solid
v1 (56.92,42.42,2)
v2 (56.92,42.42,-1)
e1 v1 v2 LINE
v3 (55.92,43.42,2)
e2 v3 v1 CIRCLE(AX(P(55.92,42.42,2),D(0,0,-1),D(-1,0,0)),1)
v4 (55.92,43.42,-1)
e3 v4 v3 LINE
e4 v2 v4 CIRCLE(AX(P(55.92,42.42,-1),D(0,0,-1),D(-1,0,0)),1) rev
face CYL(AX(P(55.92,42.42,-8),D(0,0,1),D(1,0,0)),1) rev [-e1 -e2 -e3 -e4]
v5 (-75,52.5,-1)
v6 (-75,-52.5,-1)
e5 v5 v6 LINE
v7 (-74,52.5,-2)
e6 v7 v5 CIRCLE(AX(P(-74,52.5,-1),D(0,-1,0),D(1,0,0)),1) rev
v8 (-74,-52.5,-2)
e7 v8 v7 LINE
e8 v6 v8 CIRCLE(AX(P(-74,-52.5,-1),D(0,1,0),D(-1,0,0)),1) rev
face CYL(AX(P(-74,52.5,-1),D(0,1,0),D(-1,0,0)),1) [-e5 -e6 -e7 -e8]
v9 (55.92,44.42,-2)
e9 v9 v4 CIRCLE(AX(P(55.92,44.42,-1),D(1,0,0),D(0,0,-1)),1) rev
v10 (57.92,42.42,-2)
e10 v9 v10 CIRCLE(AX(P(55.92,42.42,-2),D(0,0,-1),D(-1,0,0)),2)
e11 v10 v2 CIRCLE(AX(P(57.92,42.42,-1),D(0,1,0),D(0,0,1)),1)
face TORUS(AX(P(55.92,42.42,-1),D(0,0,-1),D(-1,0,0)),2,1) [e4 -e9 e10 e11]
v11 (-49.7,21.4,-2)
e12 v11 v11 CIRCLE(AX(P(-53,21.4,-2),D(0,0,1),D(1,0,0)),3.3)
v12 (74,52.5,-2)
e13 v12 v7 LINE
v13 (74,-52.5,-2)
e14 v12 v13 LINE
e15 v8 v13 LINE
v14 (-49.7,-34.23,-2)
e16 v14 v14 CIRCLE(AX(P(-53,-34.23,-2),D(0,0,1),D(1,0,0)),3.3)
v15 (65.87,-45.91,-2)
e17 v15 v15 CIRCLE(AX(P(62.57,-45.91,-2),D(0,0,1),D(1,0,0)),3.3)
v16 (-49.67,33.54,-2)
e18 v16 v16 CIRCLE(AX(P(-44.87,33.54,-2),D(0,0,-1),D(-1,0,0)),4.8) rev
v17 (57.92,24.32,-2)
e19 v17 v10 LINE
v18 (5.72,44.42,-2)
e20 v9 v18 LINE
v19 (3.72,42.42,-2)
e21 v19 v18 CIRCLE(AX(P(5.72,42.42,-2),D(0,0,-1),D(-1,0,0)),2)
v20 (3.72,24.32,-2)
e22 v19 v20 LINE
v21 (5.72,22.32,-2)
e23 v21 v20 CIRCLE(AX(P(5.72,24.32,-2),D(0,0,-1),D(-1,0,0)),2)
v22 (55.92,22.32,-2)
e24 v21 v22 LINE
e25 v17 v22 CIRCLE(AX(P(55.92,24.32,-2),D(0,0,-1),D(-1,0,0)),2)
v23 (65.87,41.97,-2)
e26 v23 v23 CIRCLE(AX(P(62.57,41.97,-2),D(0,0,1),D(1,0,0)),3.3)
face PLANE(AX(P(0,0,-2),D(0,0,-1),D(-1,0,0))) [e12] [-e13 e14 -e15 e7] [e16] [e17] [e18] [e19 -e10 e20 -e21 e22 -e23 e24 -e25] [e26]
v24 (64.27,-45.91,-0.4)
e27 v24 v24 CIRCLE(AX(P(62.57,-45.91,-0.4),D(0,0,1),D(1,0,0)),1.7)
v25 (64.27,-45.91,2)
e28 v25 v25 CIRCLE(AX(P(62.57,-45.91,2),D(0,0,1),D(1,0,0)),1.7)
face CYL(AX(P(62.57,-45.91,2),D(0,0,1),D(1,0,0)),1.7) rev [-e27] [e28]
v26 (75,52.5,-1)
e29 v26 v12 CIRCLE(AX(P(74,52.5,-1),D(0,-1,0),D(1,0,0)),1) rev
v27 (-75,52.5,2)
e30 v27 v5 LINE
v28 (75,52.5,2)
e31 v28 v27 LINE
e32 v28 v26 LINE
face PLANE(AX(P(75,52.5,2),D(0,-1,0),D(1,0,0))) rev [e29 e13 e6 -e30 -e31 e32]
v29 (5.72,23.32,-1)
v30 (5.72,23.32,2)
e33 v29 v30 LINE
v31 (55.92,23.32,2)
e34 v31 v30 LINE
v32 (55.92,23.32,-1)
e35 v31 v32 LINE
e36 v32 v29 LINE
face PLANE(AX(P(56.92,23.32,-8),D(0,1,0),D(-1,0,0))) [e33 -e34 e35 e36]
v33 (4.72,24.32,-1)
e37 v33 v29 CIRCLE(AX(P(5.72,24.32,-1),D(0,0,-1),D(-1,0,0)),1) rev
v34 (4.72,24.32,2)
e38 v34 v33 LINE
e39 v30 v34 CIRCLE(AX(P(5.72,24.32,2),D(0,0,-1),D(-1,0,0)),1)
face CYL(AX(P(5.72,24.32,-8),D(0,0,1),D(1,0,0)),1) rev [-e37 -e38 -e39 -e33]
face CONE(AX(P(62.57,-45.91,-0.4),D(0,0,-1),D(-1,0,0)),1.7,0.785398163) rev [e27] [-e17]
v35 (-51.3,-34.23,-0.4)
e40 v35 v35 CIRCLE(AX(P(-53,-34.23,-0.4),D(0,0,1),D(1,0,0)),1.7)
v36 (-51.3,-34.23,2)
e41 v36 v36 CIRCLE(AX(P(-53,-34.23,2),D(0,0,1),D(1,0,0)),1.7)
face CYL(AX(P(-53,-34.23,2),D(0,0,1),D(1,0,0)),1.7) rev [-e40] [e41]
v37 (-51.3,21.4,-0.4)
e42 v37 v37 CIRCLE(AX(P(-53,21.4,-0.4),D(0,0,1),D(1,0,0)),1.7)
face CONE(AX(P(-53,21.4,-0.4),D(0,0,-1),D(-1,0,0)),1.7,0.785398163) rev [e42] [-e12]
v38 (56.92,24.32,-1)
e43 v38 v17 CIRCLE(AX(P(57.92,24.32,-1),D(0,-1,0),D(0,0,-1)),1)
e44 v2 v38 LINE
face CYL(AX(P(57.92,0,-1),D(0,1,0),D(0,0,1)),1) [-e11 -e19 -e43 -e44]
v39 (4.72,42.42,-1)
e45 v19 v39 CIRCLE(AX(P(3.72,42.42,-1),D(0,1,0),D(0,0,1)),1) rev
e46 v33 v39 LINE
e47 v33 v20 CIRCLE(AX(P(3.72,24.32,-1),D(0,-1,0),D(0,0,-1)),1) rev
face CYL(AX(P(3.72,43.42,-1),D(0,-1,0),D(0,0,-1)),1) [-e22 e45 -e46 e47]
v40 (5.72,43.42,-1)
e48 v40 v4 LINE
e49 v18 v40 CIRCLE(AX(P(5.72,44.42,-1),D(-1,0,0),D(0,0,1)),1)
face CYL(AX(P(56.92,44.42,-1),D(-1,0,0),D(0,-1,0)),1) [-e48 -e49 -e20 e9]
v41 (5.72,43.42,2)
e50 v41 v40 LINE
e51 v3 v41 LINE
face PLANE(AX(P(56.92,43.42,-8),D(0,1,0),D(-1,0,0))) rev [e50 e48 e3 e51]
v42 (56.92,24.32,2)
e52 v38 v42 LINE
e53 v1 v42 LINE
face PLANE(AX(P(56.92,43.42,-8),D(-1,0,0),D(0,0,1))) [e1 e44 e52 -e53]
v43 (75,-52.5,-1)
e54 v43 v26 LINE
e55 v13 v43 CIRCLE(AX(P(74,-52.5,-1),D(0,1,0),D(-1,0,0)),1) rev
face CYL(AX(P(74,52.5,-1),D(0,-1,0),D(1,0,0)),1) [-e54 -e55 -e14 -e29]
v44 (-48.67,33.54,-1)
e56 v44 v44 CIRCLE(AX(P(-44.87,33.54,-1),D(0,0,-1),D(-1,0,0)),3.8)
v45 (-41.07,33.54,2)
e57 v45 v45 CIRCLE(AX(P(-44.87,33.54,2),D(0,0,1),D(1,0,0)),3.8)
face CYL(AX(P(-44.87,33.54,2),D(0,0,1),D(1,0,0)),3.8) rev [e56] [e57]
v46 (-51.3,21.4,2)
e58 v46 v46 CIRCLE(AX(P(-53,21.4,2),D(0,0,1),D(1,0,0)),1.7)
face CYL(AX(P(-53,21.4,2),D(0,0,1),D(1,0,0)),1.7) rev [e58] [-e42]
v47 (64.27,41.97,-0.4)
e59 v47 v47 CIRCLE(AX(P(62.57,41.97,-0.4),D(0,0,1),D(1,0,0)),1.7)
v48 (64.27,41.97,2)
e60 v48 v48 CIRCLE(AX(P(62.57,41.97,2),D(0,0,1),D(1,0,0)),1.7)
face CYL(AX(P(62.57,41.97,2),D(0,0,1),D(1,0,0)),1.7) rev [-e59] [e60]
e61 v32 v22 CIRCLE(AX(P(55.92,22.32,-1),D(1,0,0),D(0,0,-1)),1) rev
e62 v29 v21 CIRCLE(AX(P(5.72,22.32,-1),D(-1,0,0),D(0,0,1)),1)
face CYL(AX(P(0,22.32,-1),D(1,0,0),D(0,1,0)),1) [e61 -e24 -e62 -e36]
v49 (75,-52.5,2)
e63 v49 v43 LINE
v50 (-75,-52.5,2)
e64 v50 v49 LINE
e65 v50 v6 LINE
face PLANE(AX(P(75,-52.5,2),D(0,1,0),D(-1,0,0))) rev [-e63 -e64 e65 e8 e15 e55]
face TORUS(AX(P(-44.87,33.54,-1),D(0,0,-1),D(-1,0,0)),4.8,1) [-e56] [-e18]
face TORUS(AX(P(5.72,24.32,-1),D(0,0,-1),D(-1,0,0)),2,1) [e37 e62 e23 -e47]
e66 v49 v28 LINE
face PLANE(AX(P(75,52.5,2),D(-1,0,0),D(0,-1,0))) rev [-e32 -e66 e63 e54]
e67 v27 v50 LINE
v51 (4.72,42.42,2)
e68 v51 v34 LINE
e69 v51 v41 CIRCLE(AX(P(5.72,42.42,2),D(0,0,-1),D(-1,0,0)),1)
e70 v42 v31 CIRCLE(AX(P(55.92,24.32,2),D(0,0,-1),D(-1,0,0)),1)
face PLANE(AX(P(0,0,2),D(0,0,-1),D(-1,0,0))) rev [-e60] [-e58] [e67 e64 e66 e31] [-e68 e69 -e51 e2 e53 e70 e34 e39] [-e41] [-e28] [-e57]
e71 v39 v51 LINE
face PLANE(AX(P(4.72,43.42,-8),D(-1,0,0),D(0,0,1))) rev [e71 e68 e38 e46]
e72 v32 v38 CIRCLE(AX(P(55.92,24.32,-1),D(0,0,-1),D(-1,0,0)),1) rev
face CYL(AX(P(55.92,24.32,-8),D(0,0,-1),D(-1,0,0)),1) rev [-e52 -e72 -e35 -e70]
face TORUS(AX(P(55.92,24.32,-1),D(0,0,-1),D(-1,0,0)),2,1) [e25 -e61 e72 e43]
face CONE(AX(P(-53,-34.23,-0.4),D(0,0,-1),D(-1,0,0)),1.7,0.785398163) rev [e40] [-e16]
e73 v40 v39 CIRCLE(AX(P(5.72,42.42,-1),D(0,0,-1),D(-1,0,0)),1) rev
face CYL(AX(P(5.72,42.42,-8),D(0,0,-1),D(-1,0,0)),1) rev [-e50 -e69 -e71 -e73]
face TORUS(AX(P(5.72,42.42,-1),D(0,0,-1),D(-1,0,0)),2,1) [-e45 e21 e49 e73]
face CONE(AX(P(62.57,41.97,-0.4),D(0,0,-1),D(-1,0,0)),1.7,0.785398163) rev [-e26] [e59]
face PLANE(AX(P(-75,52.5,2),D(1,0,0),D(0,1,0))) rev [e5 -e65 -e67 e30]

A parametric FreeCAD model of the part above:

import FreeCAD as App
import Part
import Sketcher

V = App.Vector
Q = App.Units.Quantity


def edges_at(feature, points):
    """Names of the edges that pass closest to the given points."""
    edges = feature.Shape.Edges
    near = lambda p: min(range(len(edges)), key=lambda i: edges[i].distToShape(Part.Vertex(*p))[0])
    return sorted({f"Edge{near(p) + 1}" for p in points})


def add_polygon(sketch, points):
    """Adds a closed chain of lines whose ends are joined by coincident constraints."""
    first, n = sketch.GeometryCount, len(points)
    for a, b in zip(points, points[1:] + points[:1]):
        sketch.addGeometry(Part.LineSegment(App.Vector(*a, 0), App.Vector(*b, 0)), False)
    for i in range(n):
        sketch.addConstraint(Sketcher.Constraint("Coincident", first + i, 2, first + (i + 1) % n, 1))

doc = App.newDocument("Part")
body = doc.addObject("PartDesign::Body", "Body")

# Sketch on XY plane
sketch1 = doc.addObject("Sketcher::SketchObject", "Sketch")
body.addObject(sketch1)
sketch1.AttachmentSupport = (doc.XY_Plane, [""])
sketch1.MapMode = "FlatFace"
add_polygon(sketch1, [(-75, 52.5), (-75, -52.5), (75, -52.5), (75, 52.5)])  # lines 0-3
sketch1.addConstraint([
    Sketcher.Constraint("Vertical", 0),
    Sketcher.Constraint("Horizontal", 1),
    Sketcher.Constraint("Vertical", 2),
    Sketcher.Constraint("Horizontal", 3),
    Sketcher.Constraint("Symmetric", 0, 2, 2, 2, -1, 1),
    Sketcher.Constraint("DistanceX", 1, 1, 1, 2, Q("150 mm")),
    Sketcher.Constraint("DistanceY", 0, 2, 0, 1, Q("105 mm")),
])
pad1 = doc.addObject("PartDesign::Pad", "Pad")
body.addObject(pad1)
pad1.Profile = sketch1
pad1.Length = 4
pad1.Midplane = True

# Sketch on YZ plane
sketch2 = doc.addObject("Sketcher::SketchObject", "Sketch001")
body.addObject(sketch2)
sketch2.AttachmentSupport = (doc.YZ_Plane, [""])
sketch2.MapMode = "FlatFace"
sketch2.AttachmentOffset = App.Placement(V(0, 0, -53), App.Rotation())
add_polygon(sketch2, [(21.4, -2), (21.4, 2), (19.7, 2), (19.7, -0.4), (18.1, -2)])  # lines 0-4
sketch2.addGeometry(Part.LineSegment(V(21.4, 2, 0), V(21.4, -2, 0)), True)  # axis
sketch2.addConstraint([
    Sketcher.Constraint("Vertical", 0),
    Sketcher.Constraint("Horizontal", 1),
    Sketcher.Constraint("Vertical", 2),
    Sketcher.Constraint("Horizontal", 4),
    Sketcher.Constraint("Vertical", 5),
    Sketcher.Constraint("Coincident", 5, 1, 0, 2),
    Sketcher.Constraint("Horizontal", 3, 2, 5, 2),
    Sketcher.Constraint("DistanceY", 0, 1, 0, 2, Q("4 mm")),
    Sketcher.Constraint("Angle", 3, Q("-135 deg")),
    Sketcher.Constraint("DistanceX", 1, 2, 1, 1, Q("1.7 mm")),
    Sketcher.Constraint("DistanceX", 4, 1, 4, 2, Q("3.3 mm")),
    Sketcher.Constraint("DistanceY", -1, 1, 0, 2, Q("2 mm")),
    Sketcher.Constraint("DistanceX", -1, 1, 0, 2, Q("21.4 mm")),
])
groove = doc.addObject("PartDesign::Groove", "Groove")
body.addObject(groove)
groove.Profile = sketch2
groove.ReferenceAxis = (sketch2, ["Axis0"])
groove.Angle = 360
doc.recompute()

linearpattern = doc.addObject("PartDesign::LinearPattern", "LinearPattern")
body.addObject(linearpattern)
linearpattern.Originals = [groove]
linearpattern.Direction = (doc.Y_Axis, [""])
linearpattern.Mode = "offset"
linearpattern.Offset = 55.63
linearpattern.Occurrences = 2
linearpattern.Reversed = True
body.Tip = linearpattern
doc.recompute()

datumline = doc.addObject("PartDesign::Line", "DatumLine")
body.addObject(datumline)
datumline.Placement = App.Placement(V(0, 0, 0), App.Rotation(V(0, 0, 1), V(0.864123108, -0.503280492, 0)))
linearpattern2 = doc.addObject("PartDesign::LinearPattern", "LinearPattern001")
body.addObject(linearpattern2)
linearpattern2.Originals = [groove]
linearpattern2.Direction = (datumline, [""])
linearpattern2.Mode = "offset"
linearpattern2.Offset = 133.742518
linearpattern2.Occurrences = 2
body.Tip = linearpattern2
doc.recompute()

datumline2 = doc.addObject("PartDesign::Line", "DatumLine001")
body.addObject(datumline2)
datumline2.Placement = App.Placement(V(0, 0, 0), App.Rotation(V(0, 0, 1), V(0.984526928, 0.175233356, 0)))
linearpattern3 = doc.addObject("PartDesign::LinearPattern", "LinearPattern002")
body.addObject(linearpattern3)
linearpattern3.Originals = [groove]
linearpattern3.Direction = (datumline2, [""])
linearpattern3.Mode = "offset"
linearpattern3.Offset = 117.386327
linearpattern3.Occurrences = 2
body.Tip = linearpattern3

# Sketch on XY plane
sketch3 = doc.addObject("Sketcher::SketchObject", "Sketch002")
body.addObject(sketch3)
sketch3.AttachmentSupport = (doc.XY_Plane, [""])
sketch3.MapMode = "FlatFace"
sketch3.AttachmentOffset = App.Placement(V(0, 0, 2), App.Rotation())
sketch3.addGeometry(Part.Circle(V(-44.87, 33.54, 0), V(0, 0, 1), 3.8), False)
sketch3.addConstraint([
    Sketcher.Constraint("Diameter", 0, Q("7.6 mm")),
    Sketcher.Constraint("DistanceX", 0, 3, -1, 1, Q("44.87 mm")),
    Sketcher.Constraint("DistanceY", -1, 1, 0, 3, Q("33.54 mm")),
])
doc.recompute()
hole = doc.addObject("PartDesign::Hole", "Hole")
body.addObject(hole)
hole.Profile = sketch3
hole.ThreadType = "None"
hole.Diameter = 7.6
hole.DepthType = "ThroughAll"

# Sketch on XY plane
sketch4 = doc.addObject("Sketcher::SketchObject", "Sketch003")
body.addObject(sketch4)
sketch4.AttachmentSupport = (doc.XY_Plane, [""])
sketch4.MapMode = "FlatFace"
sketch4.AttachmentOffset = App.Placement(V(0, 0, 2), App.Rotation())
add_polygon(sketch4, [(4.72, 43.42), (4.72, 23.32), (56.92, 23.32), (56.92, 43.42)])  # lines 0-3
sketch4.addConstraint([
    Sketcher.Constraint("Vertical", 0),
    Sketcher.Constraint("Horizontal", 1),
    Sketcher.Constraint("Vertical", 2),
    Sketcher.Constraint("Horizontal", 3),
    Sketcher.Constraint("DistanceX", 1, 1, 1, 2, Q("52.2 mm")),
    Sketcher.Constraint("DistanceY", 0, 2, 0, 1, Q("20.1 mm")),
    Sketcher.Constraint("DistanceX", -1, 1, 0, 2, Q("4.72 mm")),
    Sketcher.Constraint("DistanceY", -1, 1, 0, 2, Q("23.32 mm")),
])
pocket1 = doc.addObject("PartDesign::Pocket", "Pocket")
body.addObject(pocket1)
pocket1.Profile = sketch4
pocket1.Length = 10
doc.recompute()

fillet = doc.addObject("PartDesign::Fillet", "Fillet")
body.addObject(fillet)
fillet.Base = (pocket1, edges_at(pocket1, [
    (56.92, 33.37, -2),
    (30.82, 43.42, -2),
    (4.72, 33.37, -2),
    (30.82, 23.32, -2),
    (56.92, 23.32, 0),
    (4.72, 23.32, 0),
    (4.72, 43.42, 0),
    (56.92, 43.42, 0),
]))
fillet.Radius = 1
doc.recompute()

fillet2 = doc.addObject("PartDesign::Fillet", "Fillet001")
body.addObject(fillet2)
fillet2.Base = (fillet, edges_at(fillet, [(-41.07, 33.54, -2)]))
fillet2.Radius = 1
doc.recompute()

fillet3 = doc.addObject("PartDesign::Fillet", "Fillet002")
body.addObject(fillet3)
fillet3.Base = (fillet2, edges_at(fillet2, [(75, 0, -2), (-75, 0, -2)]))
fillet3.Radius = 1

doc.recompute()
